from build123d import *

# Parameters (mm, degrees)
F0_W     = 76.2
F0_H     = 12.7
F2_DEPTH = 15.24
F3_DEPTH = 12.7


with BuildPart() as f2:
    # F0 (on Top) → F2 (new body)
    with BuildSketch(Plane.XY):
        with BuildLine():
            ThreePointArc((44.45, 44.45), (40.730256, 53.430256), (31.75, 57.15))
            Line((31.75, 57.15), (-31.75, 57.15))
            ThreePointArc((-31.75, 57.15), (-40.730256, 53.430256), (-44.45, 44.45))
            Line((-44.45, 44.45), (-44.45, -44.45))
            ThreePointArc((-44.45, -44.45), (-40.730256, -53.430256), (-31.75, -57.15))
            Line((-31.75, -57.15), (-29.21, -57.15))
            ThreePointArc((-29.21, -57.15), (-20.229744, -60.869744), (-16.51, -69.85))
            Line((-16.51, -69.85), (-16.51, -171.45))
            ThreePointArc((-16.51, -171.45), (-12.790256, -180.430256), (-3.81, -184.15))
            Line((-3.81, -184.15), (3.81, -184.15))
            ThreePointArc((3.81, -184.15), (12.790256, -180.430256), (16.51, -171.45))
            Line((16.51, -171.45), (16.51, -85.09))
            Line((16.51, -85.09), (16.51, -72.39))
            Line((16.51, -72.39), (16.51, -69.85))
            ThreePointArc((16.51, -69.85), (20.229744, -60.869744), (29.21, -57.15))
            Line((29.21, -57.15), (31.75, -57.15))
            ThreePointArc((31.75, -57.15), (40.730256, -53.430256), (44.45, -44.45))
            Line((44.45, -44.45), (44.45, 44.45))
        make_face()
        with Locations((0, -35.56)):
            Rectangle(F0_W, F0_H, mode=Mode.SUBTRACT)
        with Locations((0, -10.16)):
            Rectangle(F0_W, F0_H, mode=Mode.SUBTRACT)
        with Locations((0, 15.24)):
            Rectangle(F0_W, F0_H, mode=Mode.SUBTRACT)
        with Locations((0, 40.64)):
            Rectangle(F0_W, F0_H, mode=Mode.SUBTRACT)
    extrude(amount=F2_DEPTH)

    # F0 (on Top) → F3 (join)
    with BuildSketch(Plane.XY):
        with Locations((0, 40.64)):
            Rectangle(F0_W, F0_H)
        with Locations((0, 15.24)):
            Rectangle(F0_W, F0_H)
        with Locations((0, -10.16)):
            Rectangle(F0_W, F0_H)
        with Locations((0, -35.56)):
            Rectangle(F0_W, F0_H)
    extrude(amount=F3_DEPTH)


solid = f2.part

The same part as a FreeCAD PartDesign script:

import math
import FreeCAD as App
import Part
import Sketcher
Q = App.Units.Quantity

doc = App.newDocument("Part")
body = doc.addObject("PartDesign::Body", "Body")

# Sketch on XY plane
sketch1 = body.newObject("Sketcher::SketchObject", "Sketch")
sketch1.AttachmentSupport = (doc.getObject("XY_Plane"), [""])
sketch1.MapMode = "FlatFace"
sketch1.addGeometry(Part.ArcOfCircle(Part.Circle(App.Vector(31.7, 44.4, 0), App.Vector(0, 0, 1), 12.7), math.radians(0), math.radians(90)), False)
sketch1.addGeometry(Part.LineSegment(App.Vector(31.8, 57.1, 0), App.Vector(-31.8, 57.1, 0)), False)
sketch1.addGeometry(Part.ArcOfCircle(Part.Circle(App.Vector(-31.7, 44.4, 0), App.Vector(0, 0, 1), 12.7), math.radians(90), math.radians(180)), False)
sketch1.addGeometry(Part.LineSegment(App.Vector(-44.5, 44.5, 0), App.Vector(-44.5, -44.5, 0)), False)
sketch1.addGeometry(Part.ArcOfCircle(Part.Circle(App.Vector(-31.7, -44.4, 0), App.Vector(0, 0, 1), 12.7), math.radians(-180), math.radians(-90)), False)
sketch1.addGeometry(Part.LineSegment(App.Vector(-31.8, -57.1, 0), App.Vector(-29.2, -57.1, 0)), False)
sketch1.addGeometry(Part.ArcOfCircle(Part.Circle(App.Vector(-29.2, -69.9, 0), App.Vector(0, 0, 1), 12.7), math.radians(0), math.radians(90)), False)
sketch1.addGeometry(Part.LineSegment(App.Vector(-16.5, -69.8, 0), App.Vector(-16.5, -171.4, 0)), False)
sketch1.addGeometry(Part.ArcOfCircle(Part.Circle(App.Vector(-3.8, -171.4, 0), App.Vector(0, 0, 1), 12.7), math.radians(-180), math.radians(-90)), False)
sketch1.addGeometry(Part.LineSegment(App.Vector(-3.8, -184.2, 0), App.Vector(3.8, -184.2, 0)), False)
sketch1.addGeometry(Part.ArcOfCircle(Part.Circle(App.Vector(3.8, -171.4, 0), App.Vector(0, 0, 1), 12.7), math.radians(-90), math.radians(0)), False)
sketch1.addGeometry(Part.LineSegment(App.Vector(16.5, -171.4, 0), App.Vector(16.5, -69.8, 0)), False)
sketch1.addGeometry(Part.ArcOfCircle(Part.Circle(App.Vector(29.2, -69.9, 0), App.Vector(0, 0, 1), 12.7), math.radians(90), math.radians(180)), False)
sketch1.addGeometry(Part.LineSegment(App.Vector(29.2, -57.1, 0), App.Vector(31.8, -57.1, 0)), False)
sketch1.addGeometry(Part.ArcOfCircle(Part.Circle(App.Vector(31.7, -44.4, 0), App.Vector(0, 0, 1), 12.7), math.radians(-90), math.radians(0)), False)
sketch1.addGeometry(Part.LineSegment(App.Vector(44.5, -44.5, 0), App.Vector(44.5, 44.5, 0)), False)
sketch1.addGeometry(Part.LineSegment(App.Vector(38.1, -41.9, 0), App.Vector(-38.1, -41.9, 0)), False)
sketch1.addGeometry(Part.LineSegment(App.Vector(-38.1, -41.9, 0), App.Vector(-38.1, -29.2, 0)), False)
sketch1.addGeometry(Part.LineSegment(App.Vector(-38.1, -29.2, 0), App.Vector(38.1, -29.2, 0)), False)
sketch1.addGeometry(Part.LineSegment(App.Vector(38.1, -29.2, 0), App.Vector(38.1, -41.9, 0)), False)
sketch1.addGeometry(Part.LineSegment(App.Vector(38.1, -16.5, 0), App.Vector(-38.1, -16.5, 0)), False)
sketch1.addGeometry(Part.LineSegment(App.Vector(-38.1, -16.5, 0), App.Vector(-38.1, -3.8, 0)), False)
sketch1.addGeometry(Part.LineSegment(App.Vector(-38.1, -3.8, 0), App.Vector(38.1, -3.8, 0)), False)
sketch1.addGeometry(Part.LineSegment(App.Vector(38.1, -3.8, 0), App.Vector(38.1, -16.5, 0)), False)
sketch1.addGeometry(Part.LineSegment(App.Vector(38.1, 8.9, 0), App.Vector(-38.1, 8.9, 0)), False)
sketch1.addGeometry(Part.LineSegment(App.Vector(-38.1, 8.9, 0), App.Vector(-38.1, 21.6, 0)), False)
sketch1.addGeometry(Part.LineSegment(App.Vector(-38.1, 21.6, 0), App.Vector(38.1, 21.6, 0)), False)
sketch1.addGeometry(Part.LineSegment(App.Vector(38.1, 21.6, 0), App.Vector(38.1, 8.9, 0)), False)
sketch1.addGeometry(Part.LineSegment(App.Vector(38.1, 34.3, 0), App.Vector(-38.1, 34.3, 0)), False)
sketch1.addGeometry(Part.LineSegment(App.Vector(-38.1, 34.3, 0), App.Vector(-38.1, 47, 0)), False)
sketch1.addGeometry(Part.LineSegment(App.Vector(-38.1, 47, 0), App.Vector(38.1, 47, 0)), False)
sketch1.addGeometry(Part.LineSegment(App.Vector(38.1, 47, 0), App.Vector(38.1, 34.3, 0)), False)
sketch1.addConstraint(Sketcher.Constraint("Tangent", 0, 2, 1, 1))
sketch1.addConstraint(Sketcher.Constraint("Tangent", 1, 2, 2, 1))
sketch1.addConstraint(Sketcher.Constraint("Tangent", 2, 2, 3, 1))
sketch1.addConstraint(Sketcher.Constraint("Tangent", 3, 2, 4, 1))
sketch1.addConstraint(Sketcher.Constraint("Tangent", 4, 2, 5, 1))
sketch1.addConstraint(Sketcher.Constraint("Tangent", 5, 2, 6, 2))
sketch1.addConstraint(Sketcher.Constraint("Tangent", 6, 1, 7, 1))
sketch1.addConstraint(Sketcher.Constraint("Tangent", 7, 2, 8, 1))
sketch1.addConstraint(Sketcher.Constraint("Tangent", 8, 2, 9, 1))
sketch1.addConstraint(Sketcher.Constraint("Tangent", 9, 2, 10, 1))
sketch1.addConstraint(Sketcher.Constraint("Tangent", 10, 2, 11, 1))
sketch1.addConstraint(Sketcher.Constraint("Tangent", 11, 2, 12, 2))
sketch1.addConstraint(Sketcher.Constraint("Tangent", 12, 1, 13, 1))
sketch1.addConstraint(Sketcher.Constraint("Tangent", 13, 2, 14, 1))
sketch1.addConstraint(Sketcher.Constraint("Tangent", 14, 2, 15, 1))
sketch1.addConstraint(Sketcher.Constraint("Tangent", 15, 2, 0, 1))
sketch1.addConstraint(Sketcher.Constraint("Coincident", 16, 2, 17, 1))
sketch1.addConstraint(Sketcher.Constraint("Coincident", 17, 2, 18, 1))
sketch1.addConstraint(Sketcher.Constraint("Coincident", 18, 2, 19, 1))
sketch1.addConstraint(Sketcher.Constraint("Coincident", 19, 2, 16, 1))
sketch1.addConstraint(Sketcher.Constraint("Coincident", 20, 2, 21, 1))
sketch1.addConstraint(Sketcher.Constraint("Coincident", 21, 2, 22, 1))
sketch1.addConstraint(Sketcher.Constraint("Coincident", 22, 2, 23, 1))
sketch1.addConstraint(Sketcher.Constraint("Coincident", 23, 2, 20, 1))
sketch1.addConstraint(Sketcher.Constraint("Coincident", 24, 2, 25, 1))
sketch1.addConstraint(Sketcher.Constraint("Coincident", 25, 2, 26, 1))
sketch1.addConstraint(Sketcher.Constraint("Coincident", 26, 2, 27, 1))
sketch1.addConstraint(Sketcher.Constraint("Coincident", 27, 2, 24, 1))
sketch1.addConstraint(Sketcher.Constraint("Coincident", 28, 2, 29, 1))
sketch1.addConstraint(Sketcher.Constraint("Coincident", 29, 2, 30, 1))
sketch1.addConstraint(Sketcher.Constraint("Coincident", 30, 2, 31, 1))
sketch1.addConstraint(Sketcher.Constraint("Coincident", 31, 2, 28, 1))
sketch1.addConstraint(Sketcher.Constraint("Horizontal", 1))
sketch1.addConstraint(Sketcher.Constraint("Vertical", 3))
sketch1.addConstraint(Sketcher.Constraint("Horizontal", 5))
sketch1.addConstraint(Sketcher.Constraint("Vertical", 7))
sketch1.addConstraint(Sketcher.Constraint("Horizontal", 9))
sketch1.addConstraint(Sketcher.Constraint("Vertical", 11))
sketch1.addConstraint(Sketcher.Constraint("Horizontal", 13))
sketch1.addConstraint(Sketcher.Constraint("Vertical", 15))
sketch1.addConstraint(Sketcher.Constraint("Horizontal", 16))
sketch1.addConstraint(Sketcher.Constraint("Vertical", 17))
sketch1.addConstraint(Sketcher.Constraint("Horizontal", 18))
sketch1.addConstraint(Sketcher.Constraint("Vertical", 19))
sketch1.addConstraint(Sketcher.Constraint("Horizontal", 20))
sketch1.addConstraint(Sketcher.Constraint("Vertical", 21))
sketch1.addConstraint(Sketcher.Constraint("Horizontal", 22))
sketch1.addConstraint(Sketcher.Constraint("Vertical", 23))
sketch1.addConstraint(Sketcher.Constraint("Horizontal", 24))
sketch1.addConstraint(Sketcher.Constraint("Vertical", 25))
sketch1.addConstraint(Sketcher.Constraint("Horizontal", 26))
sketch1.addConstraint(Sketcher.Constraint("Vertical", 27))
sketch1.addConstraint(Sketcher.Constraint("Horizontal", 28))
sketch1.addConstraint(Sketcher.Constraint("Vertical", 29))
sketch1.addConstraint(Sketcher.Constraint("Horizontal", 30))
sketch1.addConstraint(Sketcher.Constraint("Vertical", 31))
sketch1.addConstraint(Sketcher.Constraint("Equal", 0, 2))
sketch1.addConstraint(Sketcher.Constraint("Equal", 2, 4))
sketch1.addConstraint(Sketcher.Constraint("Equal", 4, 6))
sketch1.addConstraint(Sketcher.Constraint("Equal", 6, 8))
sketch1.addConstraint(Sketcher.Constraint("Equal", 8, 10))
sketch1.addConstraint(Sketcher.Constraint("Equal", 10, 12))
sketch1.addConstraint(Sketcher.Constraint("Equal", 12, 14))
sketch1.addConstraint(Sketcher.Constraint("Symmetric", 0, 3, 4, 3, -1, 1))
sketch1.addConstraint(Sketcher.Constraint("Symmetric", 6, 3, 12, 3, -2))
sketch1.addConstraint(Sketcher.Constraint("Vertical", 17, 2, 20, 2))
sketch1.addConstraint(Sketcher.Constraint("Vertical", 19, 2, 22, 2))
sketch1.addConstraint(Sketcher.Constraint("Vertical", 21, 2, 24, 2))
sketch1.addConstraint(Sketcher.Constraint("Vertical", 23, 2, 26, 2))
sketch1.addConstraint(Sketcher.Constraint("Vertical", 25, 2, 28, 2))
sketch1.addConstraint(Sketcher.Constraint("Vertical", 27, 2, 30, 2))
sketch1.addConstraint(Sketcher.Constraint("Equal", 19, 21))
sketch1.addConstraint(Sketcher.Constraint("Equal", 23, 25))
sketch1.addConstraint(Sketcher.Constraint("Equal", 27, 29))
sketch1.addConstraint(Sketcher.Constraint("Radius", 0, Q("0.5 in")))
sketch1.addConstraint(Sketcher.Constraint("DistanceX", 16, 2, 16, 1, Q("3 in")))
sketch1.addConstraint(Sketcher.Constraint("DistanceY", 7, 2, 7, 1, Q("4 in")))
sketch1.addConstraint(Sketcher.Constraint("DistanceX", 1, 2, 1, 1, Q("2.5 in")))
sketch1.addConstraint(Sketcher.Constraint("DistanceX", 5, 1, 5, 2, Q("0.1 in")))
sketch1.addConstraint(Sketcher.Constraint("DistanceY", 3, 2, 3, 1, Q("3.5 in")))
sketch1.addConstraint(Sketcher.Constraint("DistanceY", 17, 1, 17, 2, Q("0.5 in")))
sketch1.addConstraint(Sketcher.Constraint("DistanceY", 16, 2, 20, 2, Q("1 in")))
sketch1.addConstraint(Sketcher.Constraint("DistanceY", 20, 2, 24, 2, Q("1 in")))
sketch1.addConstraint(Sketcher.Constraint("DistanceY", 24, 2, 28, 2, Q("1 in")))
sketch1.addConstraint(Sketcher.Constraint("DistanceX", 16, 2, -1, 1, Q("1.5 in")))
sketch1.addConstraint(Sketcher.Constraint("DistanceY", 3, 2, 16, 2, Q("0.1 in")))
pad1 = body.newObject("PartDesign::Pad", "Pad")
pad1.Profile = sketch1
pad1.Length = Q("0.6 in")

# Sketch on XY plane
sketch2 = body.newObject("Sketcher::SketchObject", "Sketch001")
sketch2.AttachmentSupport = (doc.getObject("XY_Plane"), [""])
sketch2.MapMode = "FlatFace"
sketch2.addGeometry(Part.LineSegment(App.Vector(-38, 47, 0), App.Vector(-38, 34, 0)), False)
sketch2.addGeometry(Part.LineSegment(App.Vector(-38, 34, 0), App.Vector(38, 34, 0)), False)
sketch2.addGeometry(Part.LineSegment(App.Vector(38, 34, 0), App.Vector(38, 47, 0)), False)
sketch2.addGeometry(Part.LineSegment(App.Vector(38, 47, 0), App.Vector(-38, 47, 0)), False)
sketch2.addGeometry(Part.LineSegment(App.Vector(-38, 22, 0), App.Vector(-38, 9, 0)), False)
sketch2.addGeometry(Part.LineSegment(App.Vector(-38, 9, 0), App.Vector(38, 9, 0)), False)
sketch2.addGeometry(Part.LineSegment(App.Vector(38, 9, 0), App.Vector(38, 22, 0)), False)
sketch2.addGeometry(Part.LineSegment(App.Vector(38, 22, 0), App.Vector(-38, 22, 0)), False)
sketch2.addGeometry(Part.LineSegment(App.Vector(-38, -4, 0), App.Vector(-38, -17, 0)), False)
sketch2.addGeometry(Part.LineSegment(App.Vector(-38, -17, 0), App.Vector(38, -17, 0)), False)
sketch2.addGeometry(Part.LineSegment(App.Vector(38, -17, 0), App.Vector(38, -4, 0)), False)
sketch2.addGeometry(Part.LineSegment(App.Vector(38, -4, 0), App.Vector(-38, -4, 0)), False)
sketch2.addGeometry(Part.LineSegment(App.Vector(-38, -29, 0), App.Vector(-38, -42, 0)), False)
sketch2.addGeometry(Part.LineSegment(App.Vector(-38, -42, 0), App.Vector(38, -42, 0)), False)
sketch2.addGeometry(Part.LineSegment(App.Vector(38, -42, 0), App.Vector(38, -29, 0)), False)
sketch2.addGeometry(Part.LineSegment(App.Vector(38, -29, 0), App.Vector(-38, -29, 0)), False)
sketch2.addConstraint(Sketcher.Constraint("Coincident", 0, 2, 1, 1))
sketch2.addConstraint(Sketcher.Constraint("Coincident", 1, 2, 2, 1))
sketch2.addConstraint(Sketcher.Constraint("Coincident", 2, 2, 3, 1))
sketch2.addConstraint(Sketcher.Constraint("Coincident", 3, 2, 0, 1))
sketch2.addConstraint(Sketcher.Constraint("Coincident", 4, 2, 5, 1))
sketch2.addConstraint(Sketcher.Constraint("Coincident", 5, 2, 6, 1))
sketch2.addConstraint(Sketcher.Constraint("Coincident", 6, 2, 7, 1))
sketch2.addConstraint(Sketcher.Constraint("Coincident", 7, 2, 4, 1))
sketch2.addConstraint(Sketcher.Constraint("Coincident", 8, 2, 9, 1))
sketch2.addConstraint(Sketcher.Constraint("Coincident", 9, 2, 10, 1))
sketch2.addConstraint(Sketcher.Constraint("Coincident", 10, 2, 11, 1))
sketch2.addConstraint(Sketcher.Constraint("Coincident", 11, 2, 8, 1))
sketch2.addConstraint(Sketcher.Constraint("Coincident", 12, 2, 13, 1))
sketch2.addConstraint(Sketcher.Constraint("Coincident", 13, 2, 14, 1))
sketch2.addConstraint(Sketcher.Constraint("Coincident", 14, 2, 15, 1))
sketch2.addConstraint(Sketcher.Constraint("Coincident", 15, 2, 12, 1))
sketch2.addConstraint(Sketcher.Constraint("Vertical", 0))
sketch2.addConstraint(Sketcher.Constraint("Horizontal", 1))
sketch2.addConstraint(Sketcher.Constraint("Vertical", 2))
sketch2.addConstraint(Sketcher.Constraint("Horizontal", 3))
sketch2.addConstraint(Sketcher.Constraint("Vertical", 4))
sketch2.addConstraint(Sketcher.Constraint("Horizontal", 5))
sketch2.addConstraint(Sketcher.Constraint("Vertical", 6))
sketch2.addConstraint(Sketcher.Constraint("Horizontal", 7))
sketch2.addConstraint(Sketcher.Constraint("Vertical", 8))
sketch2.addConstraint(Sketcher.Constraint("Horizontal", 9))
sketch2.addConstraint(Sketcher.Constraint("Vertical", 10))
sketch2.addConstraint(Sketcher.Constraint("Horizontal", 11))
sketch2.addConstraint(Sketcher.Constraint("Vertical", 12))
sketch2.addConstraint(Sketcher.Constraint("Horizontal", 13))
sketch2.addConstraint(Sketcher.Constraint("Vertical", 14))
sketch2.addConstraint(Sketcher.Constraint("Horizontal", 15))
sketch2.addConstraint(Sketcher.Constraint("Vertical", 3, 2, 4, 2))
sketch2.addConstraint(Sketcher.Constraint("Vertical", 2, 2, 5, 2))
sketch2.addConstraint(Sketcher.Constraint("Vertical", 7, 2, 8, 2))
sketch2.addConstraint(Sketcher.Constraint("Vertical", 6, 2, 9, 2))
sketch2.addConstraint(Sketcher.Constraint("Vertical", 11, 2, 12, 2))
sketch2.addConstraint(Sketcher.Constraint("Vertical", 10, 2, 13, 2))
sketch2.addConstraint(Sketcher.Constraint("Equal", 2, 4))
sketch2.addConstraint(Sketcher.Constraint("Equal", 6, 8))
sketch2.addConstraint(Sketcher.Constraint("Equal", 10, 12))
sketch2.addConstraint(Sketcher.Constraint("DistanceX", 1, 1, 1, 2, Q("3 in")))
sketch2.addConstraint(Sketcher.Constraint("DistanceY", 0, 2, 0, 1, Q("0.5 in")))
sketch2.addConstraint(Sketcher.Constraint("DistanceY", 4, 2, 0, 2, Q("1 in")))
sketch2.addConstraint(Sketcher.Constraint("DistanceY", 8, 2, 4, 2, Q("1 in")))
sketch2.addConstraint(Sketcher.Constraint("DistanceY", 12, 2, 8, 2, Q("1 in")))
sketch2.addConstraint(Sketcher.Constraint("DistanceX", 0, 2, -1, 1, Q("1.5 in")))
sketch2.addConstraint(Sketcher.Constraint("DistanceY", -1, 1, 0, 2, Q("1.35 in")))
pad2 = body.newObject("PartDesign::Pad", "Pad001")
pad2.Profile = sketch2
pad2.Length = Q("0.5 in")

doc.recompute()
